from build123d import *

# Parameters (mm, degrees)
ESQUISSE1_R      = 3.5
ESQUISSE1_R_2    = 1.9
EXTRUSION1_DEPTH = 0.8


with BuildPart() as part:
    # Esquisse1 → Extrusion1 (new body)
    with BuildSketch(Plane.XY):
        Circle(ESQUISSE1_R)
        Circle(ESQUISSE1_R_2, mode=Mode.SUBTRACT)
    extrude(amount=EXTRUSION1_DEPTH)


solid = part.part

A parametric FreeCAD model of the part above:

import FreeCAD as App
import Part
import Sketcher
from FreeCAD import Vector

doc = App.newDocument("Part")
body = doc.addObject("PartDesign::Body", "Body")

sketch1 = doc.addObject("Sketcher::SketchObject", "Sketch")
body.addObject(sketch1)
sketch1.AttachmentSupport = (doc.XY_Plane, [""])
sketch1.MapMode = "FlatFace"
sketch1.addGeometry([
    Part.Circle(Vector(0, 0, 0), Vector(0, 0, 1), 3.5),
    Part.Circle(Vector(0, 0, 0), Vector(0, 0, 1), 1.9),
], False)
sketch1.addConstraint([
    Sketcher.Constraint("Coincident", 0, 3, -1, 1),
    Sketcher.Constraint("Coincident", 1, 3, -1, 1),
    Sketcher.Constraint("Diameter", 0, 7.0),
    Sketcher.Constraint("Diameter", 1, 3.8),
])
pad1 = doc.addObject("PartDesign::Pad", "Pad")
body.addObject(pad1)
pad1.Profile = sketch1
pad1.Length = 0.8

doc.recompute()
